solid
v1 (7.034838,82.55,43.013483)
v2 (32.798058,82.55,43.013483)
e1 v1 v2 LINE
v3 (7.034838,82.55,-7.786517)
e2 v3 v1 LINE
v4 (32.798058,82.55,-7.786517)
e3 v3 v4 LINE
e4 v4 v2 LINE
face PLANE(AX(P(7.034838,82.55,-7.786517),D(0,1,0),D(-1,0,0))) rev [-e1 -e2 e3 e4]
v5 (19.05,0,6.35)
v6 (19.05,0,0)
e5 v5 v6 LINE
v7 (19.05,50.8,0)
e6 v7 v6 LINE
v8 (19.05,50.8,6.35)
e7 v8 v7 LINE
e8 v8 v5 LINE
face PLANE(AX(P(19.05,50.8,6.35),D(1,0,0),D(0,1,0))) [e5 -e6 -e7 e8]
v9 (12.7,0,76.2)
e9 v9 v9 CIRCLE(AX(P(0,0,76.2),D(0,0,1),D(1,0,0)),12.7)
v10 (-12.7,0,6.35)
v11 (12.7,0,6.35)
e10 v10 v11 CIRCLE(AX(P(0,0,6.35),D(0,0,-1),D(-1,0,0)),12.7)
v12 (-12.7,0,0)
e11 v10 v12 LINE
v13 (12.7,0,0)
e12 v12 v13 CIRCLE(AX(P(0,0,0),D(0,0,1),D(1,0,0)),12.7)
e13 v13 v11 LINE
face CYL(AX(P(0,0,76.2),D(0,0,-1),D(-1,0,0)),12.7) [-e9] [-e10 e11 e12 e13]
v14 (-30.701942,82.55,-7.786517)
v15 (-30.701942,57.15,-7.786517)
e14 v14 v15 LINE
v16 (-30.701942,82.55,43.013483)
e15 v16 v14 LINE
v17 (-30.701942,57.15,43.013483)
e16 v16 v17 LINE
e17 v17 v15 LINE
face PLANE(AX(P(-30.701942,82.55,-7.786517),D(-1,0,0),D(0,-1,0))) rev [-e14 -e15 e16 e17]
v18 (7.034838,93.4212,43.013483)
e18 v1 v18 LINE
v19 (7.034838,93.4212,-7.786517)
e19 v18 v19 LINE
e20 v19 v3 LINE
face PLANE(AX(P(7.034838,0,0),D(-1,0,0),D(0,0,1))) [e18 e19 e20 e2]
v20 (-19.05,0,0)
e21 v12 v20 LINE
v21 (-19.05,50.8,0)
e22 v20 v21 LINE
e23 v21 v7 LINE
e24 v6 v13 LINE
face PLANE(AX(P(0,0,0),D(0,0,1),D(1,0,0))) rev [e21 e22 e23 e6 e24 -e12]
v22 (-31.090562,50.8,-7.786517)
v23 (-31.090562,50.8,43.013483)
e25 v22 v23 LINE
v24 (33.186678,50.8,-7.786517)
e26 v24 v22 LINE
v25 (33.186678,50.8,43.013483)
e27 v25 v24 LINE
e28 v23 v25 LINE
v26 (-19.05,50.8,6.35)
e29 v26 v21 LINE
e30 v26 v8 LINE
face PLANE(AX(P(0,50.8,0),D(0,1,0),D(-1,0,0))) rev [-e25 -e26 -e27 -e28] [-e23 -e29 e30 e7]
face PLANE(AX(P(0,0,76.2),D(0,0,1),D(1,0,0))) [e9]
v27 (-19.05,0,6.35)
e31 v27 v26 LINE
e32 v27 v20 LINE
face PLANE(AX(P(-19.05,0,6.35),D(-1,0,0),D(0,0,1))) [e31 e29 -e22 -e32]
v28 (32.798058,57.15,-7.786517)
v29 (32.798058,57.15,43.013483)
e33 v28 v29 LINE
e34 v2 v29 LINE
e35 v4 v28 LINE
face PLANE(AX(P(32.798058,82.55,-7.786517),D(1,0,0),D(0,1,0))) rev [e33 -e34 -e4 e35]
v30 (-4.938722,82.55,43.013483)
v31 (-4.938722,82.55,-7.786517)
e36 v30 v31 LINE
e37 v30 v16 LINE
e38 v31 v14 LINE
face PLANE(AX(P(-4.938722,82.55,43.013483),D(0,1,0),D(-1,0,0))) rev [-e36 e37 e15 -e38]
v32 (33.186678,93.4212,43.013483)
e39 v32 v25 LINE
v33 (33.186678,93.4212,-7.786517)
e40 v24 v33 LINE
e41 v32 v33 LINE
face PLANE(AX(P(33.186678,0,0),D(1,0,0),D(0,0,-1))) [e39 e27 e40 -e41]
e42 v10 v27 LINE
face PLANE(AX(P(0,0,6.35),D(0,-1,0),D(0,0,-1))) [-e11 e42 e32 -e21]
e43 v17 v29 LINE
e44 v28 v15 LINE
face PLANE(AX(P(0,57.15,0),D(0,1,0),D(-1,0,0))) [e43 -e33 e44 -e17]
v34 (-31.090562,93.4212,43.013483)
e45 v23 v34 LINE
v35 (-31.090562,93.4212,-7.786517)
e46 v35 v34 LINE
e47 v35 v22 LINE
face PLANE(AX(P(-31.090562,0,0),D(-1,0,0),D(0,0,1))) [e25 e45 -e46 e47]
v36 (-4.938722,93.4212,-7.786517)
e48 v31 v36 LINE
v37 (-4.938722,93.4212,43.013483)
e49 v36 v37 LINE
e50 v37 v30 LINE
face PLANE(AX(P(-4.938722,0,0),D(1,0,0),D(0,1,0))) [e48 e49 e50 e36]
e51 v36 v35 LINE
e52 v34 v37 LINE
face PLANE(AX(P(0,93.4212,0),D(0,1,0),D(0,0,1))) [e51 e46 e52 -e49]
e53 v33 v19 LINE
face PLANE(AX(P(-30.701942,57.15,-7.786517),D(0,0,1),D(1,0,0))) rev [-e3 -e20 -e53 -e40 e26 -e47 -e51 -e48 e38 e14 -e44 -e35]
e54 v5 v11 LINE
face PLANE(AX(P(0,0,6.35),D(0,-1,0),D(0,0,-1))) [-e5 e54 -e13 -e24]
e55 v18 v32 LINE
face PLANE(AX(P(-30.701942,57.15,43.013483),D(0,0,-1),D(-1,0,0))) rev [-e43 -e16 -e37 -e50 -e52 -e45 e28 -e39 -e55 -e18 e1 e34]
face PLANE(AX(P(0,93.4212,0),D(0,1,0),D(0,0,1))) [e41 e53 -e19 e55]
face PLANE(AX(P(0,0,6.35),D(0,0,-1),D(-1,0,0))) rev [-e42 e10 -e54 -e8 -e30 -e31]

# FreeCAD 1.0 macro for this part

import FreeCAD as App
import Part
import Sketcher

V = App.Vector
Q = App.Units.Quantity


def add_polygon(sketch, points):
    """Adds a closed chain of lines whose ends are joined by coincident constraints."""
    first, n = sketch.GeometryCount, len(points)
    for a, b in zip(points, points[1:] + points[:1]):
        sketch.addGeometry(Part.LineSegment(App.Vector(*a, 0), App.Vector(*b, 0)), False)
    for i in range(n):
        sketch.addConstraint(Sketcher.Constraint("Coincident", first + i, 2, first + (i + 1) % n, 1))

doc = App.newDocument("Part")
body = doc.addObject("PartDesign::Body", "Body")

sketch1 = body.newObject("Sketcher::SketchObject", "Sketch")
sketch1.AttachmentSupport = (doc.getObject("XY_Plane"), [""])
sketch1.MapMode = "FlatFace"
sketch1.addGeometry(Part.Circle(V(0, 0, 0), V(0, 0, 1), 12.7), False)
sketch1.addConstraint([
    Sketcher.Constraint("Coincident", 0, 3, -1, 1),
    Sketcher.Constraint("Diameter", 0, Q("1 in")),
])
pad1 = body.newObject("PartDesign::Pad", "Pad")
pad1.Profile = sketch1
pad1.Length = Q("3 in")

sketch2 = body.newObject("Sketcher::SketchObject", "Sketch001")
sketch2.AttachmentSupport = (doc.getObject("XY_Plane"), [""])
sketch2.MapMode = "FlatFace"
add_polygon(sketch2, [(-19.05, 0), (-19.05, 50.8), (19.05, 50.8), (19.05, 0)])
sketch2.addConstraint([
    Sketcher.Constraint("Vertical", 0),
    Sketcher.Constraint("Horizontal", 1),
    Sketcher.Constraint("Vertical", 2),
    Sketcher.Constraint("Horizontal", 3),
    Sketcher.Constraint("Symmetric", 2, 2, 3, 2, -1, 1),
    Sketcher.Constraint("DistanceY", 0, 1, 0, 2, Q("2 in")),
    Sketcher.Constraint("DistanceX", 1, 1, 1, 2, Q("1.5 in")),
])
pad2 = body.newObject("PartDesign::Pad", "Pad001")
pad2.Profile = sketch2
pad2.Length = Q("0.25 in")

sketch3 = body.newObject("Sketcher::SketchObject", "Sketch002")
sketch3.AttachmentSupport = (doc.getObject("XZ_Plane"), [""])
sketch3.MapMode = "FlatFace"
sketch3.AttachmentOffset = App.Placement(V(0, 0, -2 * 25.4), App.Rotation())
add_polygon(sketch3, [(-30.701942, -7.786517), (-30.701942, 43.013483), (32.798058, 43.013483), (32.798058, -7.786517)])
sketch3.addConstraint([
    Sketcher.Constraint("Vertical", 0),
    Sketcher.Constraint("Horizontal", 1),
    Sketcher.Constraint("Vertical", 2),
    Sketcher.Constraint("Horizontal", 3),
    Sketcher.Constraint("DistanceY", 0, 1, 0, 2, Q("2 in")),
    Sketcher.Constraint("DistanceX", 1, 1, 1, 2, Q("2.5 in")),
    Sketcher.Constraint("DistanceX", 0, 2, -1, 1, Q("30.701942 mm")),
    Sketcher.Constraint("DistanceY", -1, 1, 0, 2, Q("43.013483 mm")),
])
pad3 = body.newObject("PartDesign::Pad", "Pad002")
pad3.Profile = sketch3
pad3.Length = Q("0.25 in")
pad3.Reversed = True

sketch4 = body.newObject("Sketcher::SketchObject", "Sketch003")
sketch4.AttachmentSupport = (doc.getObject("YZ_Plane"), [""])
sketch4.MapMode = "FlatFace"
sketch4.AttachmentOffset = App.Placement(V(0, 0, 32.798058), App.Rotation())
add_polygon(sketch4, [(57.15, 43.013483), (50.8, 43.013483), (50.8, -7.786517), (57.15, -7.786517)])
sketch4.addConstraint([
    Sketcher.Constraint("Horizontal", 0),
    Sketcher.Constraint("Vertical", 1),
    Sketcher.Constraint("Horizontal", 2),
    Sketcher.Constraint("Vertical", 3),
    Sketcher.Constraint("DistanceY", 1, 2, 1, 1, Q("2 in")),
    Sketcher.Constraint("DistanceX", -1, 1, 0, 2, Q("2 in")),
    Sketcher.Constraint("DistanceX", 0, 2, 0, 1, Q("0.25 in")),
    Sketcher.Constraint("DistanceY", -1, 1, 0, 2, Q("43.013483 mm")),
])
pad4 = body.newObject("PartDesign::Pad", "Pad003")
pad4.Profile = sketch4
pad4.Length = Q("0.0153 in")

sketch5 = body.newObject("Sketcher::SketchObject", "Sketch004")
sketch5.AttachmentSupport = (doc.getObject("XZ_Plane"), [""])
sketch5.MapMode = "FlatFace"
sketch5.AttachmentOffset = App.Placement(V(0, 0, -2.25 * 25.4), App.Rotation())
add_polygon(sketch5, [(32.798058, -7.786517), (32.798058, 43.013483), (33.186678, 43.013483), (33.186678, -7.786517)])
sketch5.addConstraint([
    Sketcher.Constraint("Vertical", 0),
    Sketcher.Constraint("Horizontal", 1),
    Sketcher.Constraint("Vertical", 2),
    Sketcher.Constraint("Horizontal", 3),
    Sketcher.Constraint("DistanceY", 0, 1, 0, 2, Q("2 in")),
    Sketcher.Constraint("DistanceX", 1, 1, 1, 2, Q("0.0153 in")),
    Sketcher.Constraint("DistanceX", -1, 1, 0, 2, Q("32.798058 mm")),
    Sketcher.Constraint("DistanceY", -1, 1, 0, 2, Q("43.013483 mm")),
])
pad5 = body.newObject("PartDesign::Pad", "Pad004")
pad5.Profile = sketch5
pad5.Length = Q("1 in")
pad5.Reversed = True

sketch6 = body.newObject("Sketcher::SketchObject", "Sketch005")
sketch6.AttachmentSupport = (doc.getObject("YZ_Plane"), [""])
sketch6.MapMode = "FlatFace"
sketch6.AttachmentOffset = App.Placement(V(0, 0, -30.701942), App.Rotation())
add_polygon(sketch6, [(57.15, -7.786517), (50.8, -7.786517), (50.8, 43.013483), (57.15, 43.013483)])
sketch6.addConstraint([
    Sketcher.Constraint("Horizontal", 0),
    Sketcher.Constraint("Vertical", 1),
    Sketcher.Constraint("Horizontal", 2),
    Sketcher.Constraint("Vertical", 3),
    Sketcher.Constraint("DistanceY", 1, 1, 1, 2, Q("2 in")),
    Sketcher.Constraint("DistanceX", -1, 1, 0, 2, Q("2 in")),
    Sketcher.Constraint("DistanceX", 0, 2, 0, 1, Q("0.25 in")),
    Sketcher.Constraint("DistanceY", 0, 2, -1, 1, Q("7.786517 mm")),
])
pad6 = body.newObject("PartDesign::Pad", "Pad005")
pad6.Profile = sketch6
pad6.Length = Q("0.0153 in")
pad6.Reversed = True

sketch7 = body.newObject("Sketcher::SketchObject", "Sketch006")
sketch7.AttachmentSupport = (doc.getObject("XZ_Plane"), [""])
sketch7.MapMode = "FlatFace"
sketch7.AttachmentOffset = App.Placement(V(0, 0, -2.25 * 25.4), App.Rotation())
add_polygon(sketch7, [(-31.090562, -7.786517), (-31.090562, 43.013483), (-30.701942, 43.013483), (-30.701942, -7.786517)])
sketch7.addConstraint([
    Sketcher.Constraint("Vertical", 0),
    Sketcher.Constraint("Horizontal", 1),
    Sketcher.Constraint("Vertical", 2),
    Sketcher.Constraint("Horizontal", 3),
    Sketcher.Constraint("DistanceY", 0, 1, 0, 2, Q("2 in")),
    Sketcher.Constraint("DistanceX", 1, 1, 1, 2, Q("0.0153 in")),
    Sketcher.Constraint("DistanceX", 0, 2, -1, 1, Q("31.090562 mm")),
    Sketcher.Constraint("DistanceY", -1, 1, 0, 2, Q("43.013483 mm")),
])
pad7 = body.newObject("PartDesign::Pad", "Pad006")
pad7.Profile = sketch7
pad7.Length = Q("1 in")
pad7.Reversed = True

sketch8 = body.newObject("Sketcher::SketchObject", "Sketch007")
sketch8.AttachmentSupport = (doc.getObject("XZ_Plane"), [""])
sketch8.MapMode = "FlatFace"
sketch8.AttachmentOffset = App.Placement(V(0, 0, -3.25 * 25.4), App.Rotation())
add_polygon(sketch8, [(-31.090562, -7.786517), (-31.090562, 43.013483), (-30.701942, 43.013483), (-30.701942, -7.786517)])
sketch8.addConstraint([
    Sketcher.Constraint("Vertical", 0),
    Sketcher.Constraint("Horizontal", 1),
    Sketcher.Constraint("Vertical", 2),
    Sketcher.Constraint("Horizontal", 3),
    Sketcher.Constraint("DistanceY", 0, 1, 0, 2, Q("2 in")),
    Sketcher.Constraint("DistanceX", 1, 1, 1, 2, Q("0.0153 in")),
    Sketcher.Constraint("DistanceX", 0, 2, -1, 1, Q("31.090562 mm")),
    Sketcher.Constraint("DistanceY", -1, 1, 0, 2, Q("43.013483 mm")),
])
pad8 = body.newObject("PartDesign::Pad", "Pad007")
pad8.Profile = sketch8
pad8.Length = Q("0.428 in")
pad8.Reversed = True

sketch9 = body.newObject("Sketcher::SketchObject", "Sketch008")
sketch9.AttachmentSupport = (doc.getObject("YZ_Plane"), [""])
sketch9.MapMode = "FlatFace"
sketch9.AttachmentOffset = App.Placement(V(0, 0, -30.701942), App.Rotation())
add_polygon(sketch9, [(93.4212, 43.013483), (82.55, 43.013483), (82.55, -7.786517), (93.4212, -7.786517)])
sketch9.addConstraint([
    Sketcher.Constraint("Horizontal", 0),
    Sketcher.Constraint("Vertical", 1),
    Sketcher.Constraint("Horizontal", 2),
    Sketcher.Constraint("Vertical", 3),
    Sketcher.Constraint("DistanceY", 1, 2, 1, 1, Q("2 in")),
    Sketcher.Constraint("DistanceX", 0, 2, 0, 1, Q("0.428 in")),
    Sketcher.Constraint("DistanceX", -1, 1, 0, 2, Q("3.25 in")),
    Sketcher.Constraint("DistanceY", -1, 1, 0, 2, Q("43.013483 mm")),
])
pad9 = body.newObject("PartDesign::Pad", "Pad008")
pad9.Profile = sketch9
pad9.Length = Q("1.0143 in")

sketch10 = body.newObject("Sketcher::SketchObject", "Sketch009")
sketch10.AttachmentSupport = (doc.getObject("XZ_Plane"), [""])
sketch10.MapMode = "FlatFace"
sketch10.AttachmentOffset = App.Placement(V(0, 0, -3.25 * 25.4), App.Rotation())
add_polygon(sketch10, [(32.798058, -7.786517), (32.798058, 43.013483), (33.186678, 43.013483), (33.186678, -7.786517)])
sketch10.addConstraint([
    Sketcher.Constraint("Vertical", 0),
    Sketcher.Constraint("Horizontal", 1),
    Sketcher.Constraint("Vertical", 2),
    Sketcher.Constraint("Horizontal", 3),
    Sketcher.Constraint("DistanceY", 0, 1, 0, 2, Q("2 in")),
    Sketcher.Constraint("DistanceX", 1, 1, 1, 2, Q("0.0153 in")),
    Sketcher.Constraint("DistanceX", -1, 1, 0, 2, Q("32.798058 mm")),
    Sketcher.Constraint("DistanceY", -1, 1, 0, 2, Q("43.013483 mm")),
])
pad10 = body.newObject("PartDesign::Pad", "Pad009")
pad10.Profile = sketch10
pad10.Length = Q("0.428 in")
pad10.Reversed = True

sketch11 = body.newObject("Sketcher::SketchObject", "Sketch010")
sketch11.AttachmentSupport = (doc.getObject("YZ_Plane"), [""])
sketch11.MapMode = "FlatFace"
sketch11.AttachmentOffset = App.Placement(V(0, 0, 32.798058), App.Rotation())
add_polygon(sketch11, [(93.4212, -7.786517), (82.55, -7.786517), (82.55, 43.013483), (93.4212, 43.013483)])
sketch11.addConstraint([
    Sketcher.Constraint("Horizontal", 0),
    Sketcher.Constraint("Vertical", 1),
    Sketcher.Constraint("Horizontal", 2),
    Sketcher.Constraint("Vertical", 3),
    Sketcher.Constraint("DistanceY", 1, 1, 1, 2, Q("2 in")),
    Sketcher.Constraint("DistanceX", 0, 2, 0, 1, Q("0.428 in")),
    Sketcher.Constraint("DistanceX", -1, 1, 0, 2, Q("3.25 in")),
    Sketcher.Constraint("DistanceY", 0, 2, -1, 1, Q("7.786517 mm")),
])
pad11 = body.newObject("PartDesign::Pad", "Pad010")
pad11.Profile = sketch11
pad11.Length = Q("1.0143 in")
pad11.Reversed = True

doc.recompute()
